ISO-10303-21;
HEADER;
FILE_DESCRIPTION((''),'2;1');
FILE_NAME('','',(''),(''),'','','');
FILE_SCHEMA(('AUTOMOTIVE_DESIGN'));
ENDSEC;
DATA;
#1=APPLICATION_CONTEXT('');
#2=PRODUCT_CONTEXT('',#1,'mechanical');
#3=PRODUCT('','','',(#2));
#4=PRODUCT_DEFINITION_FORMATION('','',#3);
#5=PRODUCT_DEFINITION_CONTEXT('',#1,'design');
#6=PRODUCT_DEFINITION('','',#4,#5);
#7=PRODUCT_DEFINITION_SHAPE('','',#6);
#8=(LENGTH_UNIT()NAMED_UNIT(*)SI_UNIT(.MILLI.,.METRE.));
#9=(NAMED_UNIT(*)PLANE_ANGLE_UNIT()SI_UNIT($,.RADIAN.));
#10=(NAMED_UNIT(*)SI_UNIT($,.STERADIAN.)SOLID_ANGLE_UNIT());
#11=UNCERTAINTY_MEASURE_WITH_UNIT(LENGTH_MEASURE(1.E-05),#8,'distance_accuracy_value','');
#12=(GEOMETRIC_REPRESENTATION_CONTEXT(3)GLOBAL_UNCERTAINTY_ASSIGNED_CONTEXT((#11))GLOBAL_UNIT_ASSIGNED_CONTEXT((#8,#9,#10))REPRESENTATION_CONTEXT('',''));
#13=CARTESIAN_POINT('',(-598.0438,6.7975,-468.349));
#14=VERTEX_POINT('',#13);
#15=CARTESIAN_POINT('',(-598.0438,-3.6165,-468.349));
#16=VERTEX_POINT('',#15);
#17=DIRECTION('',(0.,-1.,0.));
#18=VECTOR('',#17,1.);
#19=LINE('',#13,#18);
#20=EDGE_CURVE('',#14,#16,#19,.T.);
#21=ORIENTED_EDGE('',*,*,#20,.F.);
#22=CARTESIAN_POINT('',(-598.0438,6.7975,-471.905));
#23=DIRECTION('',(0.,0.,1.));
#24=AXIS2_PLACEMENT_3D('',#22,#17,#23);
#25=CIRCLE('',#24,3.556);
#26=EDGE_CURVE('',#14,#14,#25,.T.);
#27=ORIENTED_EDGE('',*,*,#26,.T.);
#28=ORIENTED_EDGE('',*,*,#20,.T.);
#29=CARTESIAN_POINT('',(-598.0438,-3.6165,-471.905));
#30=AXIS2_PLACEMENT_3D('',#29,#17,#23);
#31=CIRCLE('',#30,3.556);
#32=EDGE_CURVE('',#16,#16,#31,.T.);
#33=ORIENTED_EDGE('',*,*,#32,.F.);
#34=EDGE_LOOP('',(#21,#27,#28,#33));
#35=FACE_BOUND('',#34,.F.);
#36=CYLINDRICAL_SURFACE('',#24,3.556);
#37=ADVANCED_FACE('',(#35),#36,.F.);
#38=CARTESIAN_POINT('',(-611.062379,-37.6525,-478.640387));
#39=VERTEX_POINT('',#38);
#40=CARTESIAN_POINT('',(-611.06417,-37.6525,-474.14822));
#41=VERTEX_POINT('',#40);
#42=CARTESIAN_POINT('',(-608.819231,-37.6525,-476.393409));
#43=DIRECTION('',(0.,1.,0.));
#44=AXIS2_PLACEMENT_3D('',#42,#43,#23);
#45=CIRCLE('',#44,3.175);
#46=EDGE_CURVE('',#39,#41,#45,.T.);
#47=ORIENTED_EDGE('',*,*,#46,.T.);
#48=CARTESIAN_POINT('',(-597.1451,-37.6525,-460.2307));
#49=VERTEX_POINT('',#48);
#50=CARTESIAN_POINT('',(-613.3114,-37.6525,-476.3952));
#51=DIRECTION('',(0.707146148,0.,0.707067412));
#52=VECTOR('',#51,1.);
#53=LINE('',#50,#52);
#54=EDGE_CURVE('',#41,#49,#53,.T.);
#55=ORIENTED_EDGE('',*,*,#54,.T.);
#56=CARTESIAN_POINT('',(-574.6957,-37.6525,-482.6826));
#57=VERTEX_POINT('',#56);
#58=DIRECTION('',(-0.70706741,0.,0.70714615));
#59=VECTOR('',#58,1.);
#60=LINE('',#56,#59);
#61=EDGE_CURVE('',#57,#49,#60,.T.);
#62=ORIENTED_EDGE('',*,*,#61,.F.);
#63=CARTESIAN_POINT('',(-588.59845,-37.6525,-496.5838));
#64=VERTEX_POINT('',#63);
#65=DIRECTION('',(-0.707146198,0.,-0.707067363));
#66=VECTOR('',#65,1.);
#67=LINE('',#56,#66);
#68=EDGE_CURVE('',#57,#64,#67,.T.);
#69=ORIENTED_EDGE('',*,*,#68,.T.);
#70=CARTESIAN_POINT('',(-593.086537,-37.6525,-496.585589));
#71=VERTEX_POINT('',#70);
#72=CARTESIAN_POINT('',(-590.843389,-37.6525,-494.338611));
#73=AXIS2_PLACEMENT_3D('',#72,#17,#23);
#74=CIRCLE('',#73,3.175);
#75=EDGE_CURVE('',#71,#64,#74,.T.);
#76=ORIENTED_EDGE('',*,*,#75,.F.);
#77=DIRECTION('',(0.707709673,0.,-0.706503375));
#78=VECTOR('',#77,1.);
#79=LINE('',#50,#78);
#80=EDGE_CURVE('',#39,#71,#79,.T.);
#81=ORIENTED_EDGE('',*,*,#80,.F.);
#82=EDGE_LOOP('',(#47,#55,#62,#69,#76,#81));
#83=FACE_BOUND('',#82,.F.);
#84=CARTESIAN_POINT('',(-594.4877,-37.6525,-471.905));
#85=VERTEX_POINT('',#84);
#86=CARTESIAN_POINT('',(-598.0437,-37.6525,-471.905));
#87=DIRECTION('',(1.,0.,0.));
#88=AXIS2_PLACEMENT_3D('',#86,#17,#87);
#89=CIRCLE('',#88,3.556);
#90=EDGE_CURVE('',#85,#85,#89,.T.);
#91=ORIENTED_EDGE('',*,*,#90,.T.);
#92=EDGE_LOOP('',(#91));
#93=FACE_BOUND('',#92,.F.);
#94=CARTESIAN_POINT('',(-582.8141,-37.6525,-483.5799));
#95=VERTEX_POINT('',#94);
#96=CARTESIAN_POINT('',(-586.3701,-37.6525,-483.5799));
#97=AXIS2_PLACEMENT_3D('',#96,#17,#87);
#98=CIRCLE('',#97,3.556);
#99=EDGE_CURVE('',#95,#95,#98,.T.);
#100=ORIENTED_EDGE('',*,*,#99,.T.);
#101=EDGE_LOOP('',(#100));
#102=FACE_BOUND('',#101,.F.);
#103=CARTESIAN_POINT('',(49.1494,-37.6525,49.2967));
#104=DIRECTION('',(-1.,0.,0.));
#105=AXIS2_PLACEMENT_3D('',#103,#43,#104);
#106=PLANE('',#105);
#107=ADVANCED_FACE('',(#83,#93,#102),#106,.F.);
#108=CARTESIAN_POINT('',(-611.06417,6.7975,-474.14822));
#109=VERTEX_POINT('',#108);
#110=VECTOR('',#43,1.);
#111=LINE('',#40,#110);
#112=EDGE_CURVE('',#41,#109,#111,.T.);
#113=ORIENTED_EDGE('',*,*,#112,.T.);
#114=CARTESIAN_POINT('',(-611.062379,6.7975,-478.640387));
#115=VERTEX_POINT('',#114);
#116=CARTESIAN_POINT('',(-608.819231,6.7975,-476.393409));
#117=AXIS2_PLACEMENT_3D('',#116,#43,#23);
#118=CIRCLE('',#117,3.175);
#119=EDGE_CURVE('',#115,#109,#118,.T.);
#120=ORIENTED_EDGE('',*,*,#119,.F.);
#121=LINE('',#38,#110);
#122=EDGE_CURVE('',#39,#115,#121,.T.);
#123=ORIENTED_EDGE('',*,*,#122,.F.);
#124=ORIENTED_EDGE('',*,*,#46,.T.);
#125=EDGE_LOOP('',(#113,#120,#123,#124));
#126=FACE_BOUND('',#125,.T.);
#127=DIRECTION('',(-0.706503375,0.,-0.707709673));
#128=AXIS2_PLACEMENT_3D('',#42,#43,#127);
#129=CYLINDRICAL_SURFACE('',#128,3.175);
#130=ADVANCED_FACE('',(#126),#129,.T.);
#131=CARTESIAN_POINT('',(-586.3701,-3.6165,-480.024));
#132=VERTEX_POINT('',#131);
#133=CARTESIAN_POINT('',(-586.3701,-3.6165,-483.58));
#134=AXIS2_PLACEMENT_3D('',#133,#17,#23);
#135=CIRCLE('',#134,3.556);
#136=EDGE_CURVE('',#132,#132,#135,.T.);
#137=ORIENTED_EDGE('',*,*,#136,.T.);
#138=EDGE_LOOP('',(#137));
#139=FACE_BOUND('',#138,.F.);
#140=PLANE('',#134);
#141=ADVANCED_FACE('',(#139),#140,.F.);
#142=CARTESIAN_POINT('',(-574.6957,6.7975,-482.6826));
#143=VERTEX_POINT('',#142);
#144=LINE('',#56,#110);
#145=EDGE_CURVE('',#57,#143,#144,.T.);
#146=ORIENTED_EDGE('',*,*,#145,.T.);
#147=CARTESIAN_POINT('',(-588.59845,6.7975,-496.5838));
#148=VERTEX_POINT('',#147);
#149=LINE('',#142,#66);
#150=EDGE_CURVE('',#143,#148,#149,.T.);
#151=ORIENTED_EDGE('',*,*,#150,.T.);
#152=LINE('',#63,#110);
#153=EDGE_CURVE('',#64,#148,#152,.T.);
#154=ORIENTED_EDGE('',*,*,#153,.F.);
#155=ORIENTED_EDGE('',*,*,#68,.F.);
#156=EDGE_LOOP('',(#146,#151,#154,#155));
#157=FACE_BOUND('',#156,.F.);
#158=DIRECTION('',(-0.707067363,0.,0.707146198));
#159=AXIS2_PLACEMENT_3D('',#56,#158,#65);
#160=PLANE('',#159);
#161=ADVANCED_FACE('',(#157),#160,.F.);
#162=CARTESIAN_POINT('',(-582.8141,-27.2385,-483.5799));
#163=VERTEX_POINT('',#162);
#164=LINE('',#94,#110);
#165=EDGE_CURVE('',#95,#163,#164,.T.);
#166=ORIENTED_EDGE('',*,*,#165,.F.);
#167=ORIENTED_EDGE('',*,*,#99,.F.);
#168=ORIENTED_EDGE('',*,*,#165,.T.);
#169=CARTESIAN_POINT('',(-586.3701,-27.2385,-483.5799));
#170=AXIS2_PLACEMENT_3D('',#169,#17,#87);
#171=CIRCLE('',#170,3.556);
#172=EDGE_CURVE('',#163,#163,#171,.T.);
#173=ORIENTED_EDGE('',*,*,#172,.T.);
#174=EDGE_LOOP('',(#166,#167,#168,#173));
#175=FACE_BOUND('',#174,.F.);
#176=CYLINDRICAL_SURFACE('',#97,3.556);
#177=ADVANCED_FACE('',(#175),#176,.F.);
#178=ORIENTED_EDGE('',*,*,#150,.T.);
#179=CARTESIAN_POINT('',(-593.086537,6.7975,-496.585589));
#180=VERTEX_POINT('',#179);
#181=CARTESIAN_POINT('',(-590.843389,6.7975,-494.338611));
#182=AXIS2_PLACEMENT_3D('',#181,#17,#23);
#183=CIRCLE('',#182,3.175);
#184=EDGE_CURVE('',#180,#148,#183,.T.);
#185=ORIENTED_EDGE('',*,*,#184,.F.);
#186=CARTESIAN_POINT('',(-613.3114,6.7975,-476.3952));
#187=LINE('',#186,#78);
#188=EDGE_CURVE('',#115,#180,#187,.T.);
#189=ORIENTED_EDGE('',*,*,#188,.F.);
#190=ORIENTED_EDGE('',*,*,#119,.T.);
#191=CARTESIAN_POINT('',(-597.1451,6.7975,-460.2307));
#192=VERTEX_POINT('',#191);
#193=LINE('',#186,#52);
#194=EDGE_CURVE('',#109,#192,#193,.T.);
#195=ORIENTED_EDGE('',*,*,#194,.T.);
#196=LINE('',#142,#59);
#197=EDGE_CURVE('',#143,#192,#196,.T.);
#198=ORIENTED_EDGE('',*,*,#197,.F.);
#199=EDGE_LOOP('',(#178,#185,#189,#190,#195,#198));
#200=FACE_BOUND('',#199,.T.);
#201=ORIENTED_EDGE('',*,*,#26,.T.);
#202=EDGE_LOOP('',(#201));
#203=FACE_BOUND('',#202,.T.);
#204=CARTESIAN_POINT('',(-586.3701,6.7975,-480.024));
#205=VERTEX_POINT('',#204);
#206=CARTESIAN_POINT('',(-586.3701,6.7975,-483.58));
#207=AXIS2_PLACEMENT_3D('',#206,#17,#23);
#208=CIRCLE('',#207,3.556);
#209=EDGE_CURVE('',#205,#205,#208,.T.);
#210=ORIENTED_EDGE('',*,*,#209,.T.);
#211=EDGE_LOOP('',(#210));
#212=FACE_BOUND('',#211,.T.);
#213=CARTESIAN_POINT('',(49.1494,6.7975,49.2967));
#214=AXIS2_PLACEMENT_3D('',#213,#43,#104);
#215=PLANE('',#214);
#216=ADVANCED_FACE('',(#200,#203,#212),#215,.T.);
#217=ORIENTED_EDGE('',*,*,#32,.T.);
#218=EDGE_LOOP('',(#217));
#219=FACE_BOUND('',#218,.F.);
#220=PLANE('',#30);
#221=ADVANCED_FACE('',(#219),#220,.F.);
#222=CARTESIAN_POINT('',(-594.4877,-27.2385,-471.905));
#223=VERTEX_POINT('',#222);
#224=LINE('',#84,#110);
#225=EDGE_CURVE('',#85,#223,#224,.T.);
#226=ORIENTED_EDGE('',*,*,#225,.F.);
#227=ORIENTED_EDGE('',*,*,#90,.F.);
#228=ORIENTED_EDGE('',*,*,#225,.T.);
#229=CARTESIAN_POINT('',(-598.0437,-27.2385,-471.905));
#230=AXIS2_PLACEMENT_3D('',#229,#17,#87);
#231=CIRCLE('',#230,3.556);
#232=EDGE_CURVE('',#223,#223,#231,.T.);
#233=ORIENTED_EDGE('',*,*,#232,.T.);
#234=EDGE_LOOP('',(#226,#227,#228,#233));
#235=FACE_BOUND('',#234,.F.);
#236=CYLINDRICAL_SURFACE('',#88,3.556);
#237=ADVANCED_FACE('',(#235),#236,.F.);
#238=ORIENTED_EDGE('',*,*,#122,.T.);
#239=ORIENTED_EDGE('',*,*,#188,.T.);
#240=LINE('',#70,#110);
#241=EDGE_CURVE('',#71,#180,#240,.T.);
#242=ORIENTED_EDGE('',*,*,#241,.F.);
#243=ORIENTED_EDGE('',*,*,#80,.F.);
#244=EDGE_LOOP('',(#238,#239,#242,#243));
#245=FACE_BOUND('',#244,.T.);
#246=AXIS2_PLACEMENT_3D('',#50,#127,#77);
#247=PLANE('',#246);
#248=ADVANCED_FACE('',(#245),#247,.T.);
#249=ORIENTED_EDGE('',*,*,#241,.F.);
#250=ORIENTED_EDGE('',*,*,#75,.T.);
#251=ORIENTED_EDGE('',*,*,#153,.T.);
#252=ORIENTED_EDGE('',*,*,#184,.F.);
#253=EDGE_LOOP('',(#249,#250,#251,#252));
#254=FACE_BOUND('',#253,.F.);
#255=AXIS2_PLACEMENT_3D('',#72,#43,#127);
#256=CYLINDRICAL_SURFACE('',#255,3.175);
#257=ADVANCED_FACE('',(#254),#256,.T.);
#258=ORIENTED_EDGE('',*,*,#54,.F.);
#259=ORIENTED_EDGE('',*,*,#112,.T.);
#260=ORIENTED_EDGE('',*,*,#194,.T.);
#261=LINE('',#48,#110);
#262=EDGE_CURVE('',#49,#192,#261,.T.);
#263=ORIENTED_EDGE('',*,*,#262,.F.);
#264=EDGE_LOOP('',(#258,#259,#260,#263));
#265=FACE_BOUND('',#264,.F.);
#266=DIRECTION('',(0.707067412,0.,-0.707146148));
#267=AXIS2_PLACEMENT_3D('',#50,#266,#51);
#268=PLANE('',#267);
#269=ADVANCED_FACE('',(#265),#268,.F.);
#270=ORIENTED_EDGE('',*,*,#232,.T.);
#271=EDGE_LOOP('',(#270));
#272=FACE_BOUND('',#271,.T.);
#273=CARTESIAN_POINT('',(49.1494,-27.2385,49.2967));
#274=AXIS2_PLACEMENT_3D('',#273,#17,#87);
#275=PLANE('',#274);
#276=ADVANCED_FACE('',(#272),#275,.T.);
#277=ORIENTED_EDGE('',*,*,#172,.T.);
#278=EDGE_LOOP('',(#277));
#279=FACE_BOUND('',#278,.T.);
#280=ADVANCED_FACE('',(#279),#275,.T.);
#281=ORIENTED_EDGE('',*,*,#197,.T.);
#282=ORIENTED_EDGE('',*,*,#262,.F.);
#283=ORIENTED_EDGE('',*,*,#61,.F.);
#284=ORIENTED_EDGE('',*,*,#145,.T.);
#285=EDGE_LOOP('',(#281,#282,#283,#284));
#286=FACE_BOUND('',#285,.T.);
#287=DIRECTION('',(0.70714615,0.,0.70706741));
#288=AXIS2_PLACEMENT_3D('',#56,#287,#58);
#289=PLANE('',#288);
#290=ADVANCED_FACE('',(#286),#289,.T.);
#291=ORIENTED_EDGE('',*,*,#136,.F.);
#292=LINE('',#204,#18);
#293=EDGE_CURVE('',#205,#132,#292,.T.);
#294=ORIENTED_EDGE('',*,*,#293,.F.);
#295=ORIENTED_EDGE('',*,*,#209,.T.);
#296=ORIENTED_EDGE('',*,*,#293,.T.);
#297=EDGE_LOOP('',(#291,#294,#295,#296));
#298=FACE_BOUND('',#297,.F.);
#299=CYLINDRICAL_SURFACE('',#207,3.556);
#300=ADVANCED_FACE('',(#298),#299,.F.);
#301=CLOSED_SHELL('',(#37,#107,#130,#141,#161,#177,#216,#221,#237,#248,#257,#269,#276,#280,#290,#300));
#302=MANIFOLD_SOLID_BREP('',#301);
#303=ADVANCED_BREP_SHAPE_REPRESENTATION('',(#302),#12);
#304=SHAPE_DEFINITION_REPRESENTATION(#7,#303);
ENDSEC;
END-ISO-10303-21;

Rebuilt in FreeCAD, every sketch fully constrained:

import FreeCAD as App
import Part
import Sketcher

V = App.Vector
Q = App.Units.Quantity


def edges_at(feature, points):
    """Names of the edges that pass closest to the given points."""
    edges = feature.Shape.Edges
    near = lambda p: min(range(len(edges)), key=lambda i: edges[i].distToShape(Part.Vertex(*p))[0])
    return sorted({f"Edge{near(p) + 1}" for p in points})


def add_polygon(sketch, points):
    """Adds a closed chain of lines whose ends are joined by coincident constraints."""
    first, n = sketch.GeometryCount, len(points)
    for a, b in zip(points, points[1:] + points[:1]):
        sketch.addGeometry(Part.LineSegment(App.Vector(*a, 0), App.Vector(*b, 0)), False)
    for i in range(n):
        sketch.addConstraint(Sketcher.Constraint("Coincident", first + i, 2, first + (i + 1) % n, 1))

doc = App.newDocument("Part")
body = doc.addObject("PartDesign::Body", "Body")

sketch1 = doc.addObject("Sketcher::SketchObject", "Sketch")
body.addObject(sketch1)
sketch1.AttachmentSupport = (doc.XZ_Plane, [""])
sketch1.MapMode = "FlatFace"
sketch1.AttachmentOffset = App.Placement(V(0, 0, 37.6525), App.Rotation())
add_polygon(sketch1, [(-590.8416, -498.8267), (-613.3114, -476.3952), (-597.1451, -460.2307), (-574.6957, -482.6826)])
sketch1.addConstraint(Sketcher.Constraint("Perpendicular", 1, 2))
sketch1.addConstraint(Sketcher.Constraint("Perpendicular", 2, 3))
sketch1.addConstraint(Sketcher.Constraint("Distance", 0, Q("1.25 in")))
sketch1.addConstraint(Sketcher.Constraint("Angle", 0, Q("135.0489 deg")))
sketch1.addConstraint(Sketcher.Constraint("DistanceY", 0, 2, 1, 2, Q("0.6364 in")))
sketch1.addConstraint(Sketcher.Constraint("DistanceX", 0, 2, 2, 2, Q("1.5203 in")))
sketch1.addConstraint(Sketcher.Constraint("DistanceX", 0, 2, -1, 1, Q("613.3114 mm")))
sketch1.addConstraint(Sketcher.Constraint("DistanceY", 0, 2, -1, 1, Q("476.3952 mm")))
pad1 = doc.addObject("PartDesign::Pad", "Pad")
body.addObject(pad1)
pad1.Profile = sketch1
pad1.Length = Q("1.75 in")
pad1.Reversed = True

sketch2 = doc.addObject("Sketcher::SketchObject", "Sketch001")
body.addObject(sketch2)
sketch2.AttachmentSupport = (doc.XZ_Plane, [""])
sketch2.MapMode = "FlatFace"
sketch2.AttachmentOffset = App.Placement(V(0, 0, -6.7975), App.Rotation())
sketch2.addGeometry(Part.Circle(V(-586.3701, -483.58, 0), V(0, 0, 1), 3.556), False)
sketch2.addGeometry(Part.Circle(V(-598.0438, -471.905, 0), V(0, 0, 1), 3.556), False)
sketch2.addConstraint(Sketcher.Constraint("Equal", 0, 1))
sketch2.addConstraint(Sketcher.Constraint("Diameter", 0, Q("0.28 in")))
sketch2.addConstraint(Sketcher.Constraint("DistanceX", 1, 3, 0, 3, Q("0.4596 in")))
sketch2.addConstraint(Sketcher.Constraint("DistanceX", 0, 3, -1, 1, Q("586.37 mm")))
sketch2.addConstraint(Sketcher.Constraint("DistanceY", 0, 3, -1, 1, Q("483.58 mm")))
sketch2.addConstraint(Sketcher.Constraint("DistanceY", 1, 3, -1, 1, Q("471.905 mm")))
doc.recompute()
hole = doc.addObject("PartDesign::Hole", "Hole")
body.addObject(hole)
hole.Profile = sketch2
hole.ThreadType = "None"
hole.Diameter = Q("0.28 in")
hole.DepthType = "Dimension"
hole.Depth = Q("0.41 in")
hole.DrillPoint = "Flat"
hole.Reversed = True

sketch3 = doc.addObject("Sketcher::SketchObject", "Sketch002")
body.addObject(sketch3)
sketch3.AttachmentSupport = (doc.XZ_Plane, [""])
sketch3.MapMode = "FlatFace"
sketch3.AttachmentOffset = App.Placement(V(0, 0, 37.6525), App.Rotation())
sketch3.addGeometry(Part.Circle(V(-598.0437, -471.905, 0), V(0, 0, 1), 3.556), False)
sketch3.addGeometry(Part.Circle(V(-586.3701, -483.5799, 0), V(0, 0, 1), 3.556), False)
sketch3.addConstraint(Sketcher.Constraint("Equal", 0, 1))
sketch3.addConstraint(Sketcher.Constraint("Diameter", 0, Q("0.28 in")))
sketch3.addConstraint(Sketcher.Constraint("DistanceX", 0, 3, 1, 3, Q("0.4596 in")))
sketch3.addConstraint(Sketcher.Constraint("DistanceX", 0, 3, -1, 1, Q("598.0437 mm")))
sketch3.addConstraint(Sketcher.Constraint("DistanceY", 0, 3, -1, 1, Q("471.905 mm")))
sketch3.addConstraint(Sketcher.Constraint("DistanceY", 1, 3, -1, 1, Q("483.58 mm")))
pocket1 = doc.addObject("PartDesign::Pocket", "Pocket")
body.addObject(pocket1)
pocket1.Profile = sketch3
pocket1.Length = Q("0.41 in")
doc.recompute()

fillet = doc.addObject("PartDesign::Fillet", "Fillet")
body.addObject(fillet)
fillet.Base = (pocket1, edges_at(pocket1, [(-590.842, -15.428, -498.827), (-613.311, -15.428, -476.395)]))
fillet.Radius = Q("0.125 in")

doc.recompute()
